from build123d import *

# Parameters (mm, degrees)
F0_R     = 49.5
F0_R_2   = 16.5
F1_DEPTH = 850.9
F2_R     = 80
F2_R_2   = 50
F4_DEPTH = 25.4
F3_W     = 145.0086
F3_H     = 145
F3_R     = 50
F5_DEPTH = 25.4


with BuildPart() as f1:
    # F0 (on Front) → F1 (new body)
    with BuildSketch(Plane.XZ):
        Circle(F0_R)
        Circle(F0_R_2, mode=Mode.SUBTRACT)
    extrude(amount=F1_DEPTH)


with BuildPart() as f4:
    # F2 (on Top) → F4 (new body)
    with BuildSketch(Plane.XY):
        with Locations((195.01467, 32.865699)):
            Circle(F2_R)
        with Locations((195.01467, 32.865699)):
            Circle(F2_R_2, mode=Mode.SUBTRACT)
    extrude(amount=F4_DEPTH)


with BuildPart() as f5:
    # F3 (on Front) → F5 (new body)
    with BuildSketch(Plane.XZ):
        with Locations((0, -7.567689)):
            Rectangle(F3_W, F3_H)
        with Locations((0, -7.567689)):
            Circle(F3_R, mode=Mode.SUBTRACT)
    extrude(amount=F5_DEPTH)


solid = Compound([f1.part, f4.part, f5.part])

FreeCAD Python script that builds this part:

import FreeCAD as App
import Part
import Sketcher

V = App.Vector


def add_polygon(sketch, points):
    """Adds a closed chain of lines whose ends are joined by coincident constraints."""
    first, n = sketch.GeometryCount, len(points)
    for a, b in zip(points, points[1:] + points[:1]):
        sketch.addGeometry(Part.LineSegment(App.Vector(*a, 0), App.Vector(*b, 0)), False)
    for i in range(n):
        sketch.addConstraint(Sketcher.Constraint("Coincident", first + i, 2, first + (i + 1) % n, 1))

doc = App.newDocument("Part")
body = doc.addObject("PartDesign::Body", "Body")

# Sketch on XZ plane
sketch1 = body.newObject("Sketcher::SketchObject", "Sketch")
sketch1.AttachmentSupport = (doc.getObject("XZ_Plane"), [""])
sketch1.MapMode = "FlatFace"
sketch1.addGeometry(Part.Circle(V(0, 0, 0), V(0, 0, 1), 49.5), False)
sketch1.addGeometry(Part.Circle(V(0, 0, 0), V(0, 0, 1), 16.5), False)
sketch1.addConstraint(Sketcher.Constraint("Coincident", 0, 3, -1, 1))
sketch1.addConstraint(Sketcher.Constraint("Coincident", 1, 3, -1, 1))
sketch1.addConstraint(Sketcher.Constraint("Diameter", 0, 99.0))
sketch1.addConstraint(Sketcher.Constraint("Diameter", 1, 33.0))
pad1 = body.newObject("PartDesign::Pad", "Pad")
pad1.Profile = sketch1
pad1.Length = 850.9
body2 = doc.addObject("PartDesign::Body", "Body001")

# Sketch on XY plane
sketch2 = body2.newObject("Sketcher::SketchObject", "Sketch001")
sketch2.AttachmentSupport = (doc.getObject("XY_Plane001"), [""])
sketch2.MapMode = "FlatFace"
sketch2.addGeometry(Part.Circle(V(195.01467, 32.865699, 0), V(0, 0, 1), 80), False)
sketch2.addGeometry(Part.Circle(V(195.01467, 32.865699, 0), V(0, 0, 1), 50), False)
sketch2.addConstraint(Sketcher.Constraint("Coincident", 1, 3, 0, 3))
sketch2.addConstraint(Sketcher.Constraint("Diameter", 0, 160.0))
sketch2.addConstraint(Sketcher.Constraint("Diameter", 1, 100.0))
sketch2.addConstraint(Sketcher.Constraint("DistanceY", -1, 1, 0, 3, 32.865699))
sketch2.addConstraint(Sketcher.Constraint("DistanceX", -1, 1, 0, 3, 195.01467))
pad2 = body2.newObject("PartDesign::Pad", "Pad001")
pad2.Profile = sketch2
pad2.Length = 25.4
body3 = doc.addObject("PartDesign::Body", "Body002")

# Sketch on XZ plane
sketch3 = body3.newObject("Sketcher::SketchObject", "Sketch002")
sketch3.AttachmentSupport = (doc.getObject("XZ_Plane002"), [""])
sketch3.MapMode = "FlatFace"
add_polygon(sketch3, [(-72.5043, 64.932311), (-72.5043, -80.067689), (72.5043, -80.067689), (72.5043, 64.932311)])  # lines 0-3
sketch3.addGeometry(Part.Circle(V(0, -7.567689, 0), V(0, 0, 1), 50), False)  # 4
sketch3.addConstraint(Sketcher.Constraint("Vertical", 0))
sketch3.addConstraint(Sketcher.Constraint("Horizontal", 1))
sketch3.addConstraint(Sketcher.Constraint("Vertical", 2))
sketch3.addConstraint(Sketcher.Constraint("Horizontal", 3))
sketch3.addConstraint(Sketcher.Constraint("PointOnObject", 4, 3, -2))
sketch3.addConstraint(Sketcher.Constraint("Diameter", 4, 100.0))
sketch3.addConstraint(Sketcher.Constraint("DistanceY", 0, 2, 0, 1, 145.0))
sketch3.addConstraint(Sketcher.Constraint("DistanceY", 0, 2, 4, 3, 72.5))
sketch3.addConstraint(Sketcher.Constraint("DistanceX", 1, 1, 1, 2, 145.0086))
sketch3.addConstraint(Sketcher.Constraint("DistanceX", 0, 2, -1, 1, 72.5043))
sketch3.addConstraint(Sketcher.Constraint("DistanceY", 4, 3, -1, 1, 7.567689))
pad3 = body3.newObject("PartDesign::Pad", "Pad002")
pad3.Profile = sketch3
pad3.Length = 25.4

doc.recompute()
